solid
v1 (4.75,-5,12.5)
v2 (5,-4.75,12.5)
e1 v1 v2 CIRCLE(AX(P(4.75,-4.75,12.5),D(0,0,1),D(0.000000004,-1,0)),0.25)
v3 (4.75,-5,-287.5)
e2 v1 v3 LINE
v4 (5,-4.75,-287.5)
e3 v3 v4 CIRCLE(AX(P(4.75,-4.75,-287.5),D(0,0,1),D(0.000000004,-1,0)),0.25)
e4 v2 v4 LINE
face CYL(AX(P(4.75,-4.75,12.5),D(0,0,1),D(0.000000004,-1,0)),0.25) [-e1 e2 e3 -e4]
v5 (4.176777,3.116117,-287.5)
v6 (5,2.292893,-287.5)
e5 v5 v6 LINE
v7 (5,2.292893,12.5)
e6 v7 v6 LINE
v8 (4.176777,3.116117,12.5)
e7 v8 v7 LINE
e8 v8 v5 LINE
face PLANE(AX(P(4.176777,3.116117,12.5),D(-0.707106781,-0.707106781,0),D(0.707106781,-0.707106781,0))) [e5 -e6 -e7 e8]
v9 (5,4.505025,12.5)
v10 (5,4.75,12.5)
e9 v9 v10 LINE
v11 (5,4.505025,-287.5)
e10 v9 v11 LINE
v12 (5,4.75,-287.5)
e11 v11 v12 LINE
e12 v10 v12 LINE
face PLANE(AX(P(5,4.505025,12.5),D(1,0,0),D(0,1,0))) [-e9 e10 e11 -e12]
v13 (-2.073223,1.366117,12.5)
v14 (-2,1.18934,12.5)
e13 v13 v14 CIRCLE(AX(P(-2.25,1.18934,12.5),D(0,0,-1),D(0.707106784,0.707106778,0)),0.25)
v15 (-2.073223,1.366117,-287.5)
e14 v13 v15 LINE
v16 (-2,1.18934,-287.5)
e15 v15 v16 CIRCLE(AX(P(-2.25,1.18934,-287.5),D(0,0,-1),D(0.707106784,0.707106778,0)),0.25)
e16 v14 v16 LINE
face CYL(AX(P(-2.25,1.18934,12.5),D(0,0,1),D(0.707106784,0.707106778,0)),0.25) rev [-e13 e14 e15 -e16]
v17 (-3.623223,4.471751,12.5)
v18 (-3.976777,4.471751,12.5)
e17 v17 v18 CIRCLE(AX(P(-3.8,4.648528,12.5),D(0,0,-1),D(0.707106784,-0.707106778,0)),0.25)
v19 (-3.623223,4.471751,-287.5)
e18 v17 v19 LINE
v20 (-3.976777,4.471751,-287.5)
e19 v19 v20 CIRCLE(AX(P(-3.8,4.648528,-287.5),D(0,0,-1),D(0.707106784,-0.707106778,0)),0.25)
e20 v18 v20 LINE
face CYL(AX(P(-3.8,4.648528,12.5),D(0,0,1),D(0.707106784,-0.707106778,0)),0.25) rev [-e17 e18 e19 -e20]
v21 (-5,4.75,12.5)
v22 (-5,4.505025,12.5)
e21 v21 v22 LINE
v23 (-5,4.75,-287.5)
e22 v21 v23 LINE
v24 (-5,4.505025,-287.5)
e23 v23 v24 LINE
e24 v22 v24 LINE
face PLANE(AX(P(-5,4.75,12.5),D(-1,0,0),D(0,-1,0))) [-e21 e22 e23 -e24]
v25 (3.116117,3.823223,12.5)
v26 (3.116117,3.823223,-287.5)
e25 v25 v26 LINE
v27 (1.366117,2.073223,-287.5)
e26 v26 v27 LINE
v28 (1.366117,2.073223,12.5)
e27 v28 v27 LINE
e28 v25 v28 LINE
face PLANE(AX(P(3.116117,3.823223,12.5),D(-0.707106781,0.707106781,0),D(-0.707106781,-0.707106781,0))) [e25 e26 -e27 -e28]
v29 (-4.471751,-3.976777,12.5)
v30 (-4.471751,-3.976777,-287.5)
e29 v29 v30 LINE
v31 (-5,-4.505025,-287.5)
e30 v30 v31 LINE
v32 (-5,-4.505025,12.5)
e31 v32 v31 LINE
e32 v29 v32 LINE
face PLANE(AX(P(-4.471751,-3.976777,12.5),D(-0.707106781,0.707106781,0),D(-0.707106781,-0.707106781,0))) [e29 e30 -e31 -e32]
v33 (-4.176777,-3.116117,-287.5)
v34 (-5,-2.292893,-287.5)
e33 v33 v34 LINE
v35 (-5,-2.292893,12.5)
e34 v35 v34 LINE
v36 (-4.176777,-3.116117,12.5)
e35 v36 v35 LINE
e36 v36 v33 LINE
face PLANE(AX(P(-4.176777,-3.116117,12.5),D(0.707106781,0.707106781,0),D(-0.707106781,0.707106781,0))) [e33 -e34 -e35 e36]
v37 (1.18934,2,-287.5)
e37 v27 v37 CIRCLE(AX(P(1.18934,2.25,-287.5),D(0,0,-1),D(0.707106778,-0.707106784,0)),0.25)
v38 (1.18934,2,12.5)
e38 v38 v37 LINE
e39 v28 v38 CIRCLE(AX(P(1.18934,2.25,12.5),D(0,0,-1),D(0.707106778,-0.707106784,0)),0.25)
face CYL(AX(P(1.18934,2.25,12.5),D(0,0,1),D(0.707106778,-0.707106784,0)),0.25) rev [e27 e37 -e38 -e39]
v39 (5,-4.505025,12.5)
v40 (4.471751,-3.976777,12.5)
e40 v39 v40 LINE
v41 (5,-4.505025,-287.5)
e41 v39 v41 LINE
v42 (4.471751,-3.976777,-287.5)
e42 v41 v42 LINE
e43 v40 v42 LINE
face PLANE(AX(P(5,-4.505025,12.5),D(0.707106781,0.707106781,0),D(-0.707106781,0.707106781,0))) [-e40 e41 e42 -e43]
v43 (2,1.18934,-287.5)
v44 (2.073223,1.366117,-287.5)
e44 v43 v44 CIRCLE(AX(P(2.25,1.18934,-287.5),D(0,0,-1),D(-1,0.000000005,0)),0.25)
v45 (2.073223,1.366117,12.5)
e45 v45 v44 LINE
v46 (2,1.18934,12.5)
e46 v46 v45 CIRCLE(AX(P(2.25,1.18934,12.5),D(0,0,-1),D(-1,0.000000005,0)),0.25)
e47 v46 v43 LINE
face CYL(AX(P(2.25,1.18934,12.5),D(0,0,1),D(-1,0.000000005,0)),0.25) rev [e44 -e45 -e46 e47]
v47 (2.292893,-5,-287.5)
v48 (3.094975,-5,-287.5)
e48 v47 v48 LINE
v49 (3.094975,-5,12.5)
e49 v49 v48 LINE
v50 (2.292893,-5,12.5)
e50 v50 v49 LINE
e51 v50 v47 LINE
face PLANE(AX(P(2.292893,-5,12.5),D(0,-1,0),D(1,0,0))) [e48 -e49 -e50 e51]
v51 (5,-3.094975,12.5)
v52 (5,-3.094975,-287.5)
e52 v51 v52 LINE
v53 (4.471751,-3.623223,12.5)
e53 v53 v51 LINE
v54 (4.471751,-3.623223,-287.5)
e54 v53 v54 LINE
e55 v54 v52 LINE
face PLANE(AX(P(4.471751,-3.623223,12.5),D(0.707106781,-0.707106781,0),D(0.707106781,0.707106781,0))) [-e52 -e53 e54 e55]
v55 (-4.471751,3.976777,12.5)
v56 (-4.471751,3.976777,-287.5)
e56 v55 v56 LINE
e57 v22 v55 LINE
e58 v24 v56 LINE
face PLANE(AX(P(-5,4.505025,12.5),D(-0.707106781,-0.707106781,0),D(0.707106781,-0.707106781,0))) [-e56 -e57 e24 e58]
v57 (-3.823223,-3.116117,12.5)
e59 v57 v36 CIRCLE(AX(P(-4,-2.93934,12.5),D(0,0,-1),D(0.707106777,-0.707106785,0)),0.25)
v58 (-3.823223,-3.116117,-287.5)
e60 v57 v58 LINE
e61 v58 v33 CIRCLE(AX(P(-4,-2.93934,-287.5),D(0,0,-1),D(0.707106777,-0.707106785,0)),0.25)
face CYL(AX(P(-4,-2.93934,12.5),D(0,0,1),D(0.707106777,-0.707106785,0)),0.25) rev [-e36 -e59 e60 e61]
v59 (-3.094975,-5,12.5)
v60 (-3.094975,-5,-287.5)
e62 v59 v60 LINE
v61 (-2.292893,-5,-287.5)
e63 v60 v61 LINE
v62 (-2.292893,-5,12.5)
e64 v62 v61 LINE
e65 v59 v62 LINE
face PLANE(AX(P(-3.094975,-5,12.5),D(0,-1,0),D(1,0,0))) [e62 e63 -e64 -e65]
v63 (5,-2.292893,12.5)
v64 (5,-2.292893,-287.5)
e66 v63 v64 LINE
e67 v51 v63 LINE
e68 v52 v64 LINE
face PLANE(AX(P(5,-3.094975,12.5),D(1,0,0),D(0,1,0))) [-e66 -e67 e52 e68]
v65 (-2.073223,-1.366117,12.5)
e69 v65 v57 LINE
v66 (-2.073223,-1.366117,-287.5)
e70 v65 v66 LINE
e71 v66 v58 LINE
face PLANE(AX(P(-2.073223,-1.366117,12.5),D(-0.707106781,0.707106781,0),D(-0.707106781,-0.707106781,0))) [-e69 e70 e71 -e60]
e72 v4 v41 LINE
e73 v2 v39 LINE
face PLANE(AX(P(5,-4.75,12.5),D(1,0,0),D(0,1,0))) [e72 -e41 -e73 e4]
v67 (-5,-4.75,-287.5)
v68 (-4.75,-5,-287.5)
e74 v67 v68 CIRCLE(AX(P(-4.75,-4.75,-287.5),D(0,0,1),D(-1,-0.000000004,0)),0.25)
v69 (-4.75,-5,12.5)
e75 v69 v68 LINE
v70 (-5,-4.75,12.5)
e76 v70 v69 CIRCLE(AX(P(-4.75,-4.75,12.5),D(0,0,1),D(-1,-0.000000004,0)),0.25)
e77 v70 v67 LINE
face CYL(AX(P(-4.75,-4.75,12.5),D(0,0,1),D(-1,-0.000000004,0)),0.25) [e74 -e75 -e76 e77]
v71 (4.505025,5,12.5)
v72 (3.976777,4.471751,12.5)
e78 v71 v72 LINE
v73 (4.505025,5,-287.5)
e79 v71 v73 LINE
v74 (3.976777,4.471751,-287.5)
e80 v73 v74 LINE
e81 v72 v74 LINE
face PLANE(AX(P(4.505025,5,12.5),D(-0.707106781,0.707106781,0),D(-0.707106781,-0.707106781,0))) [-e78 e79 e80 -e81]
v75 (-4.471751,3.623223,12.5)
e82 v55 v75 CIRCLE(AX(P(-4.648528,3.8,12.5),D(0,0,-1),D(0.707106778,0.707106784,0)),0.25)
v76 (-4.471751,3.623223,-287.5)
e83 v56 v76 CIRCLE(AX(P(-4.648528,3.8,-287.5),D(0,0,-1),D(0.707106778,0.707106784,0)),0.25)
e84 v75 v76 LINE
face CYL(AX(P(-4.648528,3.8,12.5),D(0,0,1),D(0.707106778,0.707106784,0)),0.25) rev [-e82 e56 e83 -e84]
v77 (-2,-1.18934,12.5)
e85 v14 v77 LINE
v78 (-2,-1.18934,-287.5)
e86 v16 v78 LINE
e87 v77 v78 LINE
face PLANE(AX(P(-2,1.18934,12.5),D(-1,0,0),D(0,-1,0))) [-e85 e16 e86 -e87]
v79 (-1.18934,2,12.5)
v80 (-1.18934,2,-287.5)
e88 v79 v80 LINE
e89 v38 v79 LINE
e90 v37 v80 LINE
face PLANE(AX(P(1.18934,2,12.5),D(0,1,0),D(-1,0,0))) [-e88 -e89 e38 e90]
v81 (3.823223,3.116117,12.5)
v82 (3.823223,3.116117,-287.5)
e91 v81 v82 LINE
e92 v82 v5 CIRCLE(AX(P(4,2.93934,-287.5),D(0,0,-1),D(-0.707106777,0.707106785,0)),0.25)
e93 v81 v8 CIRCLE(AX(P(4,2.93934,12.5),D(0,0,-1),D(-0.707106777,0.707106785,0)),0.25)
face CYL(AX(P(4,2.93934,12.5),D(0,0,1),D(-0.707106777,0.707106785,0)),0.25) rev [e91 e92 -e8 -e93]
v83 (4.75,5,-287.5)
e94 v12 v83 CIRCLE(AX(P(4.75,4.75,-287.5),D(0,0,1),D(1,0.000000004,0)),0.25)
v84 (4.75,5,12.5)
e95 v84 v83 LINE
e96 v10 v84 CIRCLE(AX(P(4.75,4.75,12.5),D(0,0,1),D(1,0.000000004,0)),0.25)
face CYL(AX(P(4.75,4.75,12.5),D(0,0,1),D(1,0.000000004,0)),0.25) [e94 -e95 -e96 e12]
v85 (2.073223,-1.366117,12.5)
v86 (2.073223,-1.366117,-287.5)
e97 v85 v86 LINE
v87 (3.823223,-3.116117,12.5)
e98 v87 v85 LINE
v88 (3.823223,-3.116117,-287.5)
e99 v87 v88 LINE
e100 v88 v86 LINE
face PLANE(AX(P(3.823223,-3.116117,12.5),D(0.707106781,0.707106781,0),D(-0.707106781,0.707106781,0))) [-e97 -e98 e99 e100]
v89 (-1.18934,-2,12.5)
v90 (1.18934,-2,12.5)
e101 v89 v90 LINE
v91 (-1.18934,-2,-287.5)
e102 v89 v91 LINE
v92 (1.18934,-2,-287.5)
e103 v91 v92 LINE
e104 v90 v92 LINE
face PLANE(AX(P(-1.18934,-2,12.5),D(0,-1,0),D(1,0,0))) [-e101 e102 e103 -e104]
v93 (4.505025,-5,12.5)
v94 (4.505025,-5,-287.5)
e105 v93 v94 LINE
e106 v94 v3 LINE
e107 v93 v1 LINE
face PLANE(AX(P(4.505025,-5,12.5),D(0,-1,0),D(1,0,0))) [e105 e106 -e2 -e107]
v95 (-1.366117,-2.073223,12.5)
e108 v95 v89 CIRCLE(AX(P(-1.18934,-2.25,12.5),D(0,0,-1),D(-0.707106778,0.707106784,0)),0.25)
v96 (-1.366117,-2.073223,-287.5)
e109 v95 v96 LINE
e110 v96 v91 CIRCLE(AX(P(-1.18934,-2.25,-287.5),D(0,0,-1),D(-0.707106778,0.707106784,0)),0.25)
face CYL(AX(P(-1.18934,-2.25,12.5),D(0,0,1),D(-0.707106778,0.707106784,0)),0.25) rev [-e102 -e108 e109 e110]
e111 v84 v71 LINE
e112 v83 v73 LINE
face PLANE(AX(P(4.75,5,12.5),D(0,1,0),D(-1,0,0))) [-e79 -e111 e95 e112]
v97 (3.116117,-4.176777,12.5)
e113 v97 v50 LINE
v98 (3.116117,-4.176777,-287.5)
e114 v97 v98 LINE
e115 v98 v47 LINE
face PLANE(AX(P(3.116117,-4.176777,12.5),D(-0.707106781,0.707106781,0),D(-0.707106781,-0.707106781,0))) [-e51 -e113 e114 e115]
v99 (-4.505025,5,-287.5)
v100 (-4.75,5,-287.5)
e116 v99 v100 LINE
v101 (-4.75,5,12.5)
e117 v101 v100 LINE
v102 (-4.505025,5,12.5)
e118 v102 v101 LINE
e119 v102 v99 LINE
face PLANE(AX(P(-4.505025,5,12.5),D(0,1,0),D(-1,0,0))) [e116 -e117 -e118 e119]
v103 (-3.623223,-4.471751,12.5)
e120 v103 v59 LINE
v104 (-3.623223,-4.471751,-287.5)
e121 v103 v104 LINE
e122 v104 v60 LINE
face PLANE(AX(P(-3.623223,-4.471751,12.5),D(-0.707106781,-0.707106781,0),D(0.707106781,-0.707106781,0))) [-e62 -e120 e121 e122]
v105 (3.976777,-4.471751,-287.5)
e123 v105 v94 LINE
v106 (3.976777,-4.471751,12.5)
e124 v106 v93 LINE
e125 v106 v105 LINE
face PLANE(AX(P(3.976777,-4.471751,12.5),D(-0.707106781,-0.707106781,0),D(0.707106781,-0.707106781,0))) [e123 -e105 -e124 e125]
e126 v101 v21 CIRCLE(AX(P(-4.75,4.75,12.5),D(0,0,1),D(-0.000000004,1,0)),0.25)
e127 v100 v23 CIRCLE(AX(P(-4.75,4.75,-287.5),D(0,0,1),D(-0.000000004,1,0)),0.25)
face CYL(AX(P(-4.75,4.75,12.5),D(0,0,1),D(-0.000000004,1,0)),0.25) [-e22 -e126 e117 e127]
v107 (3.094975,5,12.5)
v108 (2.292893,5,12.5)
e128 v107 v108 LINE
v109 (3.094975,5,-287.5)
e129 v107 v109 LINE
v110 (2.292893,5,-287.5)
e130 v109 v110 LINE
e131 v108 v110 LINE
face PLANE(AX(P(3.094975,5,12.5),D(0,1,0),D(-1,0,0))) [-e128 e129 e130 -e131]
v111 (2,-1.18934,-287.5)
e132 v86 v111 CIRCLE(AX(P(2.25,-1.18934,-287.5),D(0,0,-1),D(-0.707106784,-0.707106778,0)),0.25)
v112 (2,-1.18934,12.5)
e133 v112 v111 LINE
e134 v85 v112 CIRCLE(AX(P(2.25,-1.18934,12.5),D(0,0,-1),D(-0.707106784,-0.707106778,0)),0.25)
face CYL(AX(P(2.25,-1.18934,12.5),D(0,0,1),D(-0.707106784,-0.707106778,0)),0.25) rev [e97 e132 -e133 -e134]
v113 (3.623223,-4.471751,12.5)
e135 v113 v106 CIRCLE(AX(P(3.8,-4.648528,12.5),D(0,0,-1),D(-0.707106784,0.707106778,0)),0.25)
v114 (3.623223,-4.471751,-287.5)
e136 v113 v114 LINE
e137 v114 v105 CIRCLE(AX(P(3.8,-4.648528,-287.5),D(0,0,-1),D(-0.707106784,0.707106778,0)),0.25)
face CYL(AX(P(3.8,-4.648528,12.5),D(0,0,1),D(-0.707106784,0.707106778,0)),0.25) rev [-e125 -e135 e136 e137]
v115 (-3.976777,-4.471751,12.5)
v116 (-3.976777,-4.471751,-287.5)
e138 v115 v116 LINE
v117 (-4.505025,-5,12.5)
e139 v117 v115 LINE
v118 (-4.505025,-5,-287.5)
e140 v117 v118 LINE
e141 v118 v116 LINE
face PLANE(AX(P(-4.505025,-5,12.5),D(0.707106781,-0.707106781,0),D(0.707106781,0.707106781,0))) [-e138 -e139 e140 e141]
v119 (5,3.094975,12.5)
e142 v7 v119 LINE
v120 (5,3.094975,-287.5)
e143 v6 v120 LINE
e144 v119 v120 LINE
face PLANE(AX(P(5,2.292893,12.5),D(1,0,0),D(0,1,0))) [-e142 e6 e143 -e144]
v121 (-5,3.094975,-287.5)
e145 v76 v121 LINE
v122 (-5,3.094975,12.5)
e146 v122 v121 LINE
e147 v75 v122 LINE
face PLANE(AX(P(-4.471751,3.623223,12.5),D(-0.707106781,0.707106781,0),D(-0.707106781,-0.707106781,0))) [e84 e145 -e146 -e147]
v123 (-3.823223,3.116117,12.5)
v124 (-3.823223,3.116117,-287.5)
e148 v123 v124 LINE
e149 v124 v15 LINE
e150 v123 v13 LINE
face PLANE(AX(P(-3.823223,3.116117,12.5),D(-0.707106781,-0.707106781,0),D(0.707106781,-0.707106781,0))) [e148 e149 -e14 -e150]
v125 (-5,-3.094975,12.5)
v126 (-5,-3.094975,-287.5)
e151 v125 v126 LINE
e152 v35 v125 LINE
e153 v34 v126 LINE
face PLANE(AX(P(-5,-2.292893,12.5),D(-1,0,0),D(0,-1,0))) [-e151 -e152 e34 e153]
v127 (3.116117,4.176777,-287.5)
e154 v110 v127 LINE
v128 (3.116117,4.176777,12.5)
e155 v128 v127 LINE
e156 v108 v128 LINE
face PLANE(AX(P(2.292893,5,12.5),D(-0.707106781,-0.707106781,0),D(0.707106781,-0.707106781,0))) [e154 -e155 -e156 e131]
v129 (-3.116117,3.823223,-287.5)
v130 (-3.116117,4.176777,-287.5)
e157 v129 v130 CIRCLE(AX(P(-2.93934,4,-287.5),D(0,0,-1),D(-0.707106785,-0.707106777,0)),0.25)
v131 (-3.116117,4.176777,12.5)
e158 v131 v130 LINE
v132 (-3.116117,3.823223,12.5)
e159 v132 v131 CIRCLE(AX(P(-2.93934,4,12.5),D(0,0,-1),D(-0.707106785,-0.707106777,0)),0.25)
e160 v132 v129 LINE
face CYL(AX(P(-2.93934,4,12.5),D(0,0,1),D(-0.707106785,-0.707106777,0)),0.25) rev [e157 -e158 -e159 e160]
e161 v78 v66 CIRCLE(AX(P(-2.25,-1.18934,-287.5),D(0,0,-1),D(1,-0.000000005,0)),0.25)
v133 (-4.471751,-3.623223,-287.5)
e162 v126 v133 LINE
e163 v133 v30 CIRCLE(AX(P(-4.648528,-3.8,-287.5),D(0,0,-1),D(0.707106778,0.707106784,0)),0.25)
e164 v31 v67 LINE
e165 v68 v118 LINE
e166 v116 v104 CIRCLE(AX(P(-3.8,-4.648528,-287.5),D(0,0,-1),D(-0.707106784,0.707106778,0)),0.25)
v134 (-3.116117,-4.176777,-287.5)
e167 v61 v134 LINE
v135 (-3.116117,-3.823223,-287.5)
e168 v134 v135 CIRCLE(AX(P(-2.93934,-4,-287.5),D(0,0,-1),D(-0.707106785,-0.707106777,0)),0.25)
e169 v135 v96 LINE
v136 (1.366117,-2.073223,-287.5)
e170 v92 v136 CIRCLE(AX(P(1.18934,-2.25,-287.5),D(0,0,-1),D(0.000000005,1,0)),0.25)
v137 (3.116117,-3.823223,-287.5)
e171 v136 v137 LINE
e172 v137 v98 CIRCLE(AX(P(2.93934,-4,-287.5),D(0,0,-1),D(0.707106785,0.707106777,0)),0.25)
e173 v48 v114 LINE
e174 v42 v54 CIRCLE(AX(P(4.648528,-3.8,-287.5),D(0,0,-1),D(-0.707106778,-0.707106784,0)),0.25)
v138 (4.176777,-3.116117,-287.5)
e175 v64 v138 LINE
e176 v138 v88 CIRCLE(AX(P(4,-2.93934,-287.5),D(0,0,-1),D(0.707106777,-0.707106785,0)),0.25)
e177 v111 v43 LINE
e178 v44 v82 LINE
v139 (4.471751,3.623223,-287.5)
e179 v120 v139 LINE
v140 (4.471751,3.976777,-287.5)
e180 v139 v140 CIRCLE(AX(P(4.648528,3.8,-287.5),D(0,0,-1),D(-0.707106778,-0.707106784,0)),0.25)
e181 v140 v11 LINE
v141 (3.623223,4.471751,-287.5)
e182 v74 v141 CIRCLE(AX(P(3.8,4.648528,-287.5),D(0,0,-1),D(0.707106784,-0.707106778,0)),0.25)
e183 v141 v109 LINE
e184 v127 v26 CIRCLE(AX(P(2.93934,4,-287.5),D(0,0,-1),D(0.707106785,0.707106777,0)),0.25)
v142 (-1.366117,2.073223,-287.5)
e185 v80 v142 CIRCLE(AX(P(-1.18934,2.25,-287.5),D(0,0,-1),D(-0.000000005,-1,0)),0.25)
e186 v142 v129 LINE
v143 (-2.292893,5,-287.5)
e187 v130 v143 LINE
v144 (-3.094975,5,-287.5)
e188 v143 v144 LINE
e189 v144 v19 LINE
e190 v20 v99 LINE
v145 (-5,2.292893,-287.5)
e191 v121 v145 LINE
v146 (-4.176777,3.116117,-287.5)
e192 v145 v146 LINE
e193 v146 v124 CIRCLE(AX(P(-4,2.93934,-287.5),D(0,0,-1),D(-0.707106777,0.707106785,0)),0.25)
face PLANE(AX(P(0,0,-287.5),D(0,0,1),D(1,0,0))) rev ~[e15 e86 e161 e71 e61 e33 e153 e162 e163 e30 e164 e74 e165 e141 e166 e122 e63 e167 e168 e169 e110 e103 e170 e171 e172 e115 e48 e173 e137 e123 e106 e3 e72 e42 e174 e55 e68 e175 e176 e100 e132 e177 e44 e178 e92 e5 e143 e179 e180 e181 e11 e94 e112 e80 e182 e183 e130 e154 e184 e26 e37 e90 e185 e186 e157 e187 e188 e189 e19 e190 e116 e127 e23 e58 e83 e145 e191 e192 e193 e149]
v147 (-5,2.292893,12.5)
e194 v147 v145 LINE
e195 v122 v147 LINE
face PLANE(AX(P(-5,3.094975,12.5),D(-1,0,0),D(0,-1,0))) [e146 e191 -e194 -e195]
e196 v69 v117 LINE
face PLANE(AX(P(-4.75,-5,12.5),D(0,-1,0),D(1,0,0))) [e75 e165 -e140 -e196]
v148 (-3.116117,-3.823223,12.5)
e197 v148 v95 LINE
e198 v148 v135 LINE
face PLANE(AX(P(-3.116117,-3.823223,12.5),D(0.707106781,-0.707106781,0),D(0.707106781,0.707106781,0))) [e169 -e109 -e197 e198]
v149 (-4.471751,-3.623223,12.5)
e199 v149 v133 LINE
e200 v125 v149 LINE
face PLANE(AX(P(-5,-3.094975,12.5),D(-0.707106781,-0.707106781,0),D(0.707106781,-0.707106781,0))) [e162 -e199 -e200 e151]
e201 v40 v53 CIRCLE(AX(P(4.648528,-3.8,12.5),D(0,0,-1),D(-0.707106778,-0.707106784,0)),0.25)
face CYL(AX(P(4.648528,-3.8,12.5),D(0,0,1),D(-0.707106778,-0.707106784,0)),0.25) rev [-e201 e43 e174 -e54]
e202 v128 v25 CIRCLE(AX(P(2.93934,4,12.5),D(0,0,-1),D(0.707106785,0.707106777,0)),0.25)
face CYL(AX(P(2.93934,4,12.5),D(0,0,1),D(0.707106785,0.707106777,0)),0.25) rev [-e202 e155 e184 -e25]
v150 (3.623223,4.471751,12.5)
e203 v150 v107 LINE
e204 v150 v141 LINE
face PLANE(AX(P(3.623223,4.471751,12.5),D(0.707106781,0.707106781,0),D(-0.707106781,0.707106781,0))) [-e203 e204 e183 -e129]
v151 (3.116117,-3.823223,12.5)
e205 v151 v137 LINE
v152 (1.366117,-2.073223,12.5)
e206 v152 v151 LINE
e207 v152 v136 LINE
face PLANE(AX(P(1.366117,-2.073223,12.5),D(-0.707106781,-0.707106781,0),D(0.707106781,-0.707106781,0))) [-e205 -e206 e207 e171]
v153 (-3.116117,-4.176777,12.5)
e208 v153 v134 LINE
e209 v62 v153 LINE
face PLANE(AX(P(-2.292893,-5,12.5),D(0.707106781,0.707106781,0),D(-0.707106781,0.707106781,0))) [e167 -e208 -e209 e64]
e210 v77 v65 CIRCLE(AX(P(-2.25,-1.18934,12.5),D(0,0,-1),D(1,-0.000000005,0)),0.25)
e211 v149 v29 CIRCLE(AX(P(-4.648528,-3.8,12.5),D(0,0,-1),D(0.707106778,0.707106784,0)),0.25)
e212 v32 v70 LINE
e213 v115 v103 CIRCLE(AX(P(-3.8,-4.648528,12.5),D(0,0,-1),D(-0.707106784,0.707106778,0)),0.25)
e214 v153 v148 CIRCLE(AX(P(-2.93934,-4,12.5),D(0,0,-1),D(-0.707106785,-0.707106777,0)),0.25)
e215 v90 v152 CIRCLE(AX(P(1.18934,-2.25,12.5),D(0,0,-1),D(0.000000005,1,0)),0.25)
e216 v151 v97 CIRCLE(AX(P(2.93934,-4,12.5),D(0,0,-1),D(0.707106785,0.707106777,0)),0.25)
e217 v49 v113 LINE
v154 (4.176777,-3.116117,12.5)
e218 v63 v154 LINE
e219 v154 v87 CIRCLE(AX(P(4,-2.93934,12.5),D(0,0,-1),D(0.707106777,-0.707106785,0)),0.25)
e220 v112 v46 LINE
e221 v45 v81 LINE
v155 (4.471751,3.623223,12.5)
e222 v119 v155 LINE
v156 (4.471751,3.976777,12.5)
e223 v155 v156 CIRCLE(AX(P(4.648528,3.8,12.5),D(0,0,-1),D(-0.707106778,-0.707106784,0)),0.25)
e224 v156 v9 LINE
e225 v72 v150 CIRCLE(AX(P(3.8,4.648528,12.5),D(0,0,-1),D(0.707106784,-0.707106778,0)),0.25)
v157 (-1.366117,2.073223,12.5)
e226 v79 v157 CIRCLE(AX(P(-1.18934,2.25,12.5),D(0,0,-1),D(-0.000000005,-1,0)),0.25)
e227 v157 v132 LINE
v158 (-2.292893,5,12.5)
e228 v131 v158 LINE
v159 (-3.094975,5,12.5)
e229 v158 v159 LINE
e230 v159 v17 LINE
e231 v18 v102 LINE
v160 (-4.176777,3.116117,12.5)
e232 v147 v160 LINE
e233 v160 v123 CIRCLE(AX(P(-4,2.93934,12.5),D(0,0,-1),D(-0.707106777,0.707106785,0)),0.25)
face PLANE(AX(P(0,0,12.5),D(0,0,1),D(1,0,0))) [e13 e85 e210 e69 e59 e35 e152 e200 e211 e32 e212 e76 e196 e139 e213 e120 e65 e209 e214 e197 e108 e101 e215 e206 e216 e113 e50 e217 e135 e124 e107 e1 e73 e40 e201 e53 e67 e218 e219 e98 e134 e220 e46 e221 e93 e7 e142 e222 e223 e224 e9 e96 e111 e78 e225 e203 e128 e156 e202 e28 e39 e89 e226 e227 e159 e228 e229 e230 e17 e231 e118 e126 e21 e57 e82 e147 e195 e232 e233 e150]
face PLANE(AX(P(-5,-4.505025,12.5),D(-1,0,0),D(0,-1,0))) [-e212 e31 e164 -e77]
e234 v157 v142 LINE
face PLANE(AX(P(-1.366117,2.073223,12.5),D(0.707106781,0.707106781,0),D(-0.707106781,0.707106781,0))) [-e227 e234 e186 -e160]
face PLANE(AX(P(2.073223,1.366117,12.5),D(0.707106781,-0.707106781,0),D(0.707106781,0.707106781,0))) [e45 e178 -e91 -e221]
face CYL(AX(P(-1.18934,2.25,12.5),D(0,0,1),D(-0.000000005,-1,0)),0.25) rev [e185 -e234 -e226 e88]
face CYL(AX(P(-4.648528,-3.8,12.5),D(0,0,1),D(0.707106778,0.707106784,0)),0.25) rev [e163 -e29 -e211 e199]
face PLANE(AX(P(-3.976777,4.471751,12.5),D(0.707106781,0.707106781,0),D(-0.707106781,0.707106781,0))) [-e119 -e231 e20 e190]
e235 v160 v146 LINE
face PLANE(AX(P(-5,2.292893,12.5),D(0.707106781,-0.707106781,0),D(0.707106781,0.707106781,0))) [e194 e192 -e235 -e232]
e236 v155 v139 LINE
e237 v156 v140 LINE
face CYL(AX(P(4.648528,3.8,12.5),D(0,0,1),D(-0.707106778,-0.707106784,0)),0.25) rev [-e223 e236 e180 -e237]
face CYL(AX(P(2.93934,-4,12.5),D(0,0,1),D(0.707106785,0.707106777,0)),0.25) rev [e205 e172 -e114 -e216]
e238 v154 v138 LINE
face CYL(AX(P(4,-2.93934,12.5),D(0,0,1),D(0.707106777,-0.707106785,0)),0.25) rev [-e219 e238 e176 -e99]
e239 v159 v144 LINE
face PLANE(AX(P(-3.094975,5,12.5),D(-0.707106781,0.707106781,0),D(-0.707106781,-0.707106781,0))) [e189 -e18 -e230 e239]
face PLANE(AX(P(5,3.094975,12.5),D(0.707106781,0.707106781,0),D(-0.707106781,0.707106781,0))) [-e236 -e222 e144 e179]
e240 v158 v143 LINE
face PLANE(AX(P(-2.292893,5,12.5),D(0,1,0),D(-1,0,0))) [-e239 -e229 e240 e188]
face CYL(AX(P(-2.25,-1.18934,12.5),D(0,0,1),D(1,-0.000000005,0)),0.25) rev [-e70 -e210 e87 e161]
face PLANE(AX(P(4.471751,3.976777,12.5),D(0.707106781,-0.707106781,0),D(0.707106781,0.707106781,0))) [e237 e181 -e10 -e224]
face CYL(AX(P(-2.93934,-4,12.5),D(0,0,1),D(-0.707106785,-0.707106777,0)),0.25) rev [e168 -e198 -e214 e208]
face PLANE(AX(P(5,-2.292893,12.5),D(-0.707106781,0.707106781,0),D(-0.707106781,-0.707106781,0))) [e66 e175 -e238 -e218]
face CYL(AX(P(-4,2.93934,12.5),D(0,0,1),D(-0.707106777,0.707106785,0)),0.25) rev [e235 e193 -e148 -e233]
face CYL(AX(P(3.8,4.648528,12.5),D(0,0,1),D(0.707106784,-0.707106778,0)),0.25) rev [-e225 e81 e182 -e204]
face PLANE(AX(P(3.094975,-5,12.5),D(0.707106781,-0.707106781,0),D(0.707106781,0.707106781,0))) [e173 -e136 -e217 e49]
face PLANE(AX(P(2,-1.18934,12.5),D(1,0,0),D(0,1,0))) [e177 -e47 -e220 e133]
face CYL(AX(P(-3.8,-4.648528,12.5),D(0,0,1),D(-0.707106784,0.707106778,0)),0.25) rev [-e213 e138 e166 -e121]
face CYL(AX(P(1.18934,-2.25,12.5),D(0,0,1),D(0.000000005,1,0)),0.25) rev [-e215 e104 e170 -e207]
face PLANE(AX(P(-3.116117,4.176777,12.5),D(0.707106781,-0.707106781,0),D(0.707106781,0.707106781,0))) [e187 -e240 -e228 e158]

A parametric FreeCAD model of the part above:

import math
import FreeCAD as App
import Part
import Sketcher

V = App.Vector
Q = App.Units.Quantity

doc = App.newDocument("Part")
body = doc.addObject("PartDesign::Body", "Body")

sketch1 = body.newObject("Sketcher::SketchObject", "Sketch")
sketch1.AttachmentSupport = (doc.getObject("XY_Plane"), [""])
sketch1.MapMode = "FlatFace"
sketch1.AttachmentOffset = App.Placement(V(0, 0, 12.5), App.Rotation())
sketch1.addGeometry(Part.LineSegment(V(1.19, 2, 0), V(-1.19, 2, 0)), False)
sketch1.addGeometry(Part.ArcOfCircle(Part.Circle(V(-1.19, 2.25, 0), V(0, 0, 1), 0.25), math.radians(-135), math.radians(-90)), False)
sketch1.addGeometry(Part.LineSegment(V(-1.37, 2.07, 0), V(-3.12, 3.82, 0)), False)
sketch1.addGeometry(Part.ArcOfCircle(Part.Circle(V(-2.94, 4, 0), V(0, 0, 1), 0.25), math.radians(135), math.radians(225)), False)
sketch1.addGeometry(Part.LineSegment(V(-3.12, 4.18, 0), V(-2.29, 5, 0)), False)
sketch1.addGeometry(Part.LineSegment(V(-2.29, 5, 0), V(-3.09, 5, 0)), False)
sketch1.addGeometry(Part.LineSegment(V(-3.09, 5, 0), V(-3.62, 4.47, 0)), False)
sketch1.addGeometry(Part.ArcOfCircle(Part.Circle(V(-3.8, 4.65, 0), V(0, 0, 1), 0.25), math.radians(-135), math.radians(-45)), False)
sketch1.addGeometry(Part.LineSegment(V(-3.98, 4.47, 0), V(-4.51, 5, 0)), False)
sketch1.addGeometry(Part.LineSegment(V(-4.51, 5, 0), V(-4.75, 5, 0)), False)
sketch1.addGeometry(Part.ArcOfCircle(Part.Circle(V(-4.75, 4.75, 0), V(0, 0, 1), 0.25), math.radians(90), math.radians(180)), False)
sketch1.addGeometry(Part.LineSegment(V(-5, 4.75, 0), V(-5, 4.51, 0)), False)
sketch1.addGeometry(Part.LineSegment(V(-5, 4.51, 0), V(-4.47, 3.98, 0)), False)
sketch1.addGeometry(Part.ArcOfCircle(Part.Circle(V(-4.65, 3.8, 0), V(0, 0, 1), 0.25), math.radians(-45), math.radians(45)), False)
sketch1.addGeometry(Part.LineSegment(V(-4.47, 3.62, 0), V(-5, 3.09, 0)), False)
sketch1.addGeometry(Part.LineSegment(V(-5, 3.09, 0), V(-5, 2.29, 0)), False)
sketch1.addGeometry(Part.LineSegment(V(-5, 2.29, 0), V(-4.18, 3.12, 0)), False)
sketch1.addGeometry(Part.ArcOfCircle(Part.Circle(V(-4, 2.94, 0), V(0, 0, 1), 0.25), math.radians(45), math.radians(135)), False)
sketch1.addGeometry(Part.LineSegment(V(-3.82, 3.12, 0), V(-2.07, 1.37, 0)), False)
sketch1.addGeometry(Part.ArcOfCircle(Part.Circle(V(-2.25, 1.19, 0), V(0, 0, 1), 0.25), math.radians(0), math.radians(45)), False)
sketch1.addGeometry(Part.LineSegment(V(-2, 1.19, 0), V(-2, -1.19, 0)), False)
sketch1.addGeometry(Part.ArcOfCircle(Part.Circle(V(-2.25, -1.19, 0), V(0, 0, 1), 0.25), math.radians(-45), math.radians(0)), False)
sketch1.addGeometry(Part.LineSegment(V(-2.07, -1.37, 0), V(-3.82, -3.12, 0)), False)
sketch1.addGeometry(Part.ArcOfCircle(Part.Circle(V(-4, -2.94, 0), V(0, 0, 1), 0.25), math.radians(-135), math.radians(-45)), False)
sketch1.addGeometry(Part.LineSegment(V(-4.18, -3.12, 0), V(-5, -2.29, 0)), False)
sketch1.addGeometry(Part.LineSegment(V(-5, -2.29, 0), V(-5, -3.09, 0)), False)
sketch1.addGeometry(Part.LineSegment(V(-5, -3.09, 0), V(-4.47, -3.62, 0)), False)
sketch1.addGeometry(Part.ArcOfCircle(Part.Circle(V(-4.65, -3.8, 0), V(0, 0, 1), 0.25), math.radians(-45), math.radians(45)), False)
sketch1.addGeometry(Part.LineSegment(V(-4.47, -3.98, 0), V(-5, -4.51, 0)), False)
sketch1.addGeometry(Part.LineSegment(V(-5, -4.51, 0), V(-5, -4.75, 0)), False)
sketch1.addGeometry(Part.ArcOfCircle(Part.Circle(V(-4.75, -4.75, 0), V(0, 0, 1), 0.25), math.radians(-180), math.radians(-90)), False)
sketch1.addGeometry(Part.LineSegment(V(-4.75, -5, 0), V(-4.51, -5, 0)), False)
sketch1.addGeometry(Part.LineSegment(V(-4.51, -5, 0), V(-3.98, -4.47, 0)), False)
sketch1.addGeometry(Part.ArcOfCircle(Part.Circle(V(-3.8, -4.65, 0), V(0, 0, 1), 0.25), math.radians(45), math.radians(135)), False)
sketch1.addGeometry(Part.LineSegment(V(-3.62, -4.47, 0), V(-3.09, -5, 0)), False)
sketch1.addGeometry(Part.LineSegment(V(-3.09, -5, 0), V(-2.29, -5, 0)), False)
sketch1.addGeometry(Part.LineSegment(V(-2.29, -5, 0), V(-3.12, -4.18, 0)), False)
sketch1.addGeometry(Part.ArcOfCircle(Part.Circle(V(-2.94, -4, 0), V(0, 0, 1), 0.25), math.radians(135), math.radians(225)), False)
sketch1.addGeometry(Part.LineSegment(V(-3.12, -3.82, 0), V(-1.37, -2.07, 0)), False)
sketch1.addGeometry(Part.ArcOfCircle(Part.Circle(V(-1.19, -2.25, 0), V(0, 0, 1), 0.25), math.radians(90), math.radians(135)), False)
sketch1.addGeometry(Part.LineSegment(V(-1.19, -2, 0), V(1.19, -2, 0)), False)
sketch1.addGeometry(Part.ArcOfCircle(Part.Circle(V(1.19, -2.25, 0), V(0, 0, 1), 0.25), math.radians(45), math.radians(90)), False)
sketch1.addGeometry(Part.LineSegment(V(1.37, -2.07, 0), V(3.12, -3.82, 0)), False)
sketch1.addGeometry(Part.ArcOfCircle(Part.Circle(V(2.94, -4, 0), V(0, 0, 1), 0.25), math.radians(-45), math.radians(45)), False)
sketch1.addGeometry(Part.LineSegment(V(3.12, -4.18, 0), V(2.29, -5, 0)), False)
sketch1.addGeometry(Part.LineSegment(V(2.29, -5, 0), V(3.09, -5, 0)), False)
sketch1.addGeometry(Part.LineSegment(V(3.09, -5, 0), V(3.62, -4.47, 0)), False)
sketch1.addGeometry(Part.ArcOfCircle(Part.Circle(V(3.8, -4.65, 0), V(0, 0, 1), 0.25), math.radians(45), math.radians(135)), False)
sketch1.addGeometry(Part.LineSegment(V(3.98, -4.47, 0), V(4.51, -5, 0)), False)
sketch1.addGeometry(Part.LineSegment(V(4.51, -5, 0), V(4.75, -5, 0)), False)
sketch1.addGeometry(Part.ArcOfCircle(Part.Circle(V(4.75, -4.75, 0), V(0, 0, 1), 0.25), math.radians(-90), math.radians(0)), False)
sketch1.addGeometry(Part.LineSegment(V(5, -4.75, 0), V(5, -4.51, 0)), False)
sketch1.addGeometry(Part.LineSegment(V(5, -4.51, 0), V(4.47, -3.98, 0)), False)
sketch1.addGeometry(Part.ArcOfCircle(Part.Circle(V(4.65, -3.8, 0), V(0, 0, 1), 0.25), math.radians(135), math.radians(225)), False)
sketch1.addGeometry(Part.LineSegment(V(4.47, -3.62, 0), V(5, -3.09, 0)), False)
sketch1.addGeometry(Part.LineSegment(V(5, -3.09, 0), V(5, -2.29, 0)), False)
sketch1.addGeometry(Part.LineSegment(V(5, -2.29, 0), V(4.18, -3.12, 0)), False)
sketch1.addGeometry(Part.ArcOfCircle(Part.Circle(V(4, -2.94, 0), V(0, 0, 1), 0.25), math.radians(-135), math.radians(-45)), False)
sketch1.addGeometry(Part.LineSegment(V(3.82, -3.12, 0), V(2.07, -1.37, 0)), False)
sketch1.addGeometry(Part.ArcOfCircle(Part.Circle(V(2.25, -1.19, 0), V(0, 0, 1), 0.25), math.radians(-180), math.radians(-135)), False)
sketch1.addGeometry(Part.LineSegment(V(2, -1.19, 0), V(2, 1.19, 0)), False)
sketch1.addGeometry(Part.ArcOfCircle(Part.Circle(V(2.25, 1.19, 0), V(0, 0, 1), 0.25), math.radians(135), math.radians(180)), False)
sketch1.addGeometry(Part.LineSegment(V(2.07, 1.37, 0), V(3.82, 3.12, 0)), False)
sketch1.addGeometry(Part.ArcOfCircle(Part.Circle(V(4, 2.94, 0), V(0, 0, 1), 0.25), math.radians(45), math.radians(135)), False)
sketch1.addGeometry(Part.LineSegment(V(4.18, 3.12, 0), V(5, 2.29, 0)), False)
sketch1.addGeometry(Part.LineSegment(V(5, 2.29, 0), V(5, 3.09, 0)), False)
sketch1.addGeometry(Part.LineSegment(V(5, 3.09, 0), V(4.47, 3.62, 0)), False)
sketch1.addGeometry(Part.ArcOfCircle(Part.Circle(V(4.65, 3.8, 0), V(0, 0, 1), 0.25), math.radians(135), math.radians(225)), False)
sketch1.addGeometry(Part.LineSegment(V(4.47, 3.98, 0), V(5, 4.51, 0)), False)
sketch1.addGeometry(Part.LineSegment(V(5, 4.51, 0), V(5, 4.75, 0)), False)
sketch1.addGeometry(Part.ArcOfCircle(Part.Circle(V(4.75, 4.75, 0), V(0, 0, 1), 0.25), math.radians(0), math.radians(90)), False)
sketch1.addGeometry(Part.LineSegment(V(4.75, 5, 0), V(4.51, 5, 0)), False)
sketch1.addGeometry(Part.LineSegment(V(4.51, 5, 0), V(3.98, 4.47, 0)), False)
sketch1.addGeometry(Part.ArcOfCircle(Part.Circle(V(3.8, 4.65, 0), V(0, 0, 1), 0.25), math.radians(-135), math.radians(-45)), False)
sketch1.addGeometry(Part.LineSegment(V(3.62, 4.47, 0), V(3.09, 5, 0)), False)
sketch1.addGeometry(Part.LineSegment(V(3.09, 5, 0), V(2.29, 5, 0)), False)
sketch1.addGeometry(Part.LineSegment(V(2.29, 5, 0), V(3.12, 4.18, 0)), False)
sketch1.addGeometry(Part.ArcOfCircle(Part.Circle(V(2.94, 4, 0), V(0, 0, 1), 0.25), math.radians(-45), math.radians(45)), False)
sketch1.addGeometry(Part.LineSegment(V(3.12, 3.82, 0), V(1.37, 2.07, 0)), False)
sketch1.addGeometry(Part.ArcOfCircle(Part.Circle(V(1.19, 2.25, 0), V(0, 0, 1), 0.25), math.radians(-90), math.radians(-45)), False)
sketch1.addConstraint(Sketcher.Constraint("Tangent", 0, 2, 1, 2))
sketch1.addConstraint(Sketcher.Constraint("Tangent", 1, 1, 2, 1))
sketch1.addConstraint(Sketcher.Constraint("Tangent", 2, 2, 3, 2))
sketch1.addConstraint(Sketcher.Constraint("Tangent", 3, 1, 4, 1))
sketch1.addConstraint(Sketcher.Constraint("Coincident", 4, 2, 5, 1))
sketch1.addConstraint(Sketcher.Constraint("Coincident", 5, 2, 6, 1))
sketch1.addConstraint(Sketcher.Constraint("Tangent", 6, 2, 7, 2))
sketch1.addConstraint(Sketcher.Constraint("Tangent", 7, 1, 8, 1))
sketch1.addConstraint(Sketcher.Constraint("Coincident", 8, 2, 9, 1))
sketch1.addConstraint(Sketcher.Constraint("Tangent", 9, 2, 10, 1))
sketch1.addConstraint(Sketcher.Constraint("Tangent", 10, 2, 11, 1))
sketch1.addConstraint(Sketcher.Constraint("Coincident", 11, 2, 12, 1))
sketch1.addConstraint(Sketcher.Constraint("Tangent", 12, 2, 13, 2))
sketch1.addConstraint(Sketcher.Constraint("Tangent", 13, 1, 14, 1))
sketch1.addConstraint(Sketcher.Constraint("Coincident", 14, 2, 15, 1))
sketch1.addConstraint(Sketcher.Constraint("Coincident", 15, 2, 16, 1))
sketch1.addConstraint(Sketcher.Constraint("Tangent", 16, 2, 17, 2))
sketch1.addConstraint(Sketcher.Constraint("Tangent", 17, 1, 18, 1))
sketch1.addConstraint(Sketcher.Constraint("Tangent", 18, 2, 19, 2))
sketch1.addConstraint(Sketcher.Constraint("Tangent", 19, 1, 20, 1))
sketch1.addConstraint(Sketcher.Constraint("Tangent", 20, 2, 21, 2))
sketch1.addConstraint(Sketcher.Constraint("Tangent", 21, 1, 22, 1))
sketch1.addConstraint(Sketcher.Constraint("Tangent", 22, 2, 23, 2))
sketch1.addConstraint(Sketcher.Constraint("Tangent", 23, 1, 24, 1))
sketch1.addConstraint(Sketcher.Constraint("Coincident", 24, 2, 25, 1))
sketch1.addConstraint(Sketcher.Constraint("Coincident", 25, 2, 26, 1))
sketch1.addConstraint(Sketcher.Constraint("Tangent", 26, 2, 27, 2))
sketch1.addConstraint(Sketcher.Constraint("Tangent", 27, 1, 28, 1))
sketch1.addConstraint(Sketcher.Constraint("Coincident", 28, 2, 29, 1))
sketch1.addConstraint(Sketcher.Constraint("Tangent", 29, 2, 30, 1))
sketch1.addConstraint(Sketcher.Constraint("Tangent", 30, 2, 31, 1))
sketch1.addConstraint(Sketcher.Constraint("Coincident", 31, 2, 32, 1))
sketch1.addConstraint(Sketcher.Constraint("Tangent", 32, 2, 33, 2))
sketch1.addConstraint(Sketcher.Constraint("Tangent", 33, 1, 34, 1))
sketch1.addConstraint(Sketcher.Constraint("Coincident", 34, 2, 35, 1))
sketch1.addConstraint(Sketcher.Constraint("Coincident", 35, 2, 36, 1))
sketch1.addConstraint(Sketcher.Constraint("Tangent", 36, 2, 37, 2))
sketch1.addConstraint(Sketcher.Constraint("Tangent", 37, 1, 38, 1))
sketch1.addConstraint(Sketcher.Constraint("Tangent", 38, 2, 39, 2))
sketch1.addConstraint(Sketcher.Constraint("Tangent", 39, 1, 40, 1))
sketch1.addConstraint(Sketcher.Constraint("Tangent", 40, 2, 41, 2))
sketch1.addConstraint(Sketcher.Constraint("Tangent", 41, 1, 42, 1))
sketch1.addConstraint(Sketcher.Constraint("Tangent", 42, 2, 43, 2))
sketch1.addConstraint(Sketcher.Constraint("Tangent", 43, 1, 44, 1))
sketch1.addConstraint(Sketcher.Constraint("Coincident", 44, 2, 45, 1))
sketch1.addConstraint(Sketcher.Constraint("Coincident", 45, 2, 46, 1))
sketch1.addConstraint(Sketcher.Constraint("Tangent", 46, 2, 47, 2))
sketch1.addConstraint(Sketcher.Constraint("Tangent", 47, 1, 48, 1))
sketch1.addConstraint(Sketcher.Constraint("Coincident", 48, 2, 49, 1))
sketch1.addConstraint(Sketcher.Constraint("Tangent", 49, 2, 50, 1))
sketch1.addConstraint(Sketcher.Constraint("Tangent", 50, 2, 51, 1))
sketch1.addConstraint(Sketcher.Constraint("Coincident", 51, 2, 52, 1))
sketch1.addConstraint(Sketcher.Constraint("Tangent", 52, 2, 53, 2))
sketch1.addConstraint(Sketcher.Constraint("Tangent", 53, 1, 54, 1))
sketch1.addConstraint(Sketcher.Constraint("Coincident", 54, 2, 55, 1))
sketch1.addConstraint(Sketcher.Constraint("Coincident", 55, 2, 56, 1))
sketch1.addConstraint(Sketcher.Constraint("Tangent", 56, 2, 57, 2))
sketch1.addConstraint(Sketcher.Constraint("Tangent", 57, 1, 58, 1))
sketch1.addConstraint(Sketcher.Constraint("Tangent", 58, 2, 59, 2))
sketch1.addConstraint(Sketcher.Constraint("Tangent", 59, 1, 60, 1))
sketch1.addConstraint(Sketcher.Constraint("Tangent", 60, 2, 61, 2))
sketch1.addConstraint(Sketcher.Constraint("Tangent", 61, 1, 62, 1))
sketch1.addConstraint(Sketcher.Constraint("Tangent", 62, 2, 63, 2))
sketch1.addConstraint(Sketcher.Constraint("Tangent", 63, 1, 64, 1))
sketch1.addConstraint(Sketcher.Constraint("Coincident", 64, 2, 65, 1))
sketch1.addConstraint(Sketcher.Constraint("Coincident", 65, 2, 66, 1))
sketch1.addConstraint(Sketcher.Constraint("Tangent", 66, 2, 67, 2))
sketch1.addConstraint(Sketcher.Constraint("Tangent", 67, 1, 68, 1))
sketch1.addConstraint(Sketcher.Constraint("Coincident", 68, 2, 69, 1))
sketch1.addConstraint(Sketcher.Constraint("Tangent", 69, 2, 70, 1))
sketch1.addConstraint(Sketcher.Constraint("Tangent", 70, 2, 71, 1))
sketch1.addConstraint(Sketcher.Constraint("Coincident", 71, 2, 72, 1))
sketch1.addConstraint(Sketcher.Constraint("Tangent", 72, 2, 73, 2))
sketch1.addConstraint(Sketcher.Constraint("Tangent", 73, 1, 74, 1))
sketch1.addConstraint(Sketcher.Constraint("Coincident", 74, 2, 75, 1))
sketch1.addConstraint(Sketcher.Constraint("Coincident", 75, 2, 76, 1))
sketch1.addConstraint(Sketcher.Constraint("Tangent", 76, 2, 77, 2))
sketch1.addConstraint(Sketcher.Constraint("Tangent", 77, 1, 78, 1))
sketch1.addConstraint(Sketcher.Constraint("Tangent", 78, 2, 79, 2))
sketch1.addConstraint(Sketcher.Constraint("Tangent", 79, 1, 0, 1))
sketch1.addConstraint(Sketcher.Constraint("Horizontal", 0))
sketch1.addConstraint(Sketcher.Constraint("Horizontal", 5))
sketch1.addConstraint(Sketcher.Constraint("Horizontal", 9))
sketch1.addConstraint(Sketcher.Constraint("Vertical", 11))
sketch1.addConstraint(Sketcher.Constraint("Vertical", 15))
sketch1.addConstraint(Sketcher.Constraint("Vertical", 20))
sketch1.addConstraint(Sketcher.Constraint("Vertical", 25))
sketch1.addConstraint(Sketcher.Constraint("Vertical", 29))
sketch1.addConstraint(Sketcher.Constraint("Horizontal", 31))
sketch1.addConstraint(Sketcher.Constraint("Horizontal", 35))
sketch1.addConstraint(Sketcher.Constraint("Horizontal", 40))
sketch1.addConstraint(Sketcher.Constraint("Horizontal", 45))
sketch1.addConstraint(Sketcher.Constraint("Horizontal", 49))
sketch1.addConstraint(Sketcher.Constraint("Vertical", 51))
sketch1.addConstraint(Sketcher.Constraint("Vertical", 55))
sketch1.addConstraint(Sketcher.Constraint("Vertical", 60))
sketch1.addConstraint(Sketcher.Constraint("Vertical", 65))
sketch1.addConstraint(Sketcher.Constraint("Vertical", 69))
sketch1.addConstraint(Sketcher.Constraint("Horizontal", 71))
sketch1.addConstraint(Sketcher.Constraint("Horizontal", 75))
sketch1.addConstraint(Sketcher.Constraint("Equal", 1, 3))
sketch1.addConstraint(Sketcher.Constraint("Equal", 3, 7))
sketch1.addConstraint(Sketcher.Constraint("Equal", 7, 10))
sketch1.addConstraint(Sketcher.Constraint("Equal", 10, 13))
sketch1.addConstraint(Sketcher.Constraint("Equal", 13, 17))
sketch1.addConstraint(Sketcher.Constraint("Equal", 17, 19))
sketch1.addConstraint(Sketcher.Constraint("Equal", 19, 21))
sketch1.addConstraint(Sketcher.Constraint("Equal", 21, 23))
sketch1.addConstraint(Sketcher.Constraint("Equal", 23, 27))
sketch1.addConstraint(Sketcher.Constraint("Equal", 27, 30))
sketch1.addConstraint(Sketcher.Constraint("Equal", 30, 33))
sketch1.addConstraint(Sketcher.Constraint("Equal", 33, 37))
sketch1.addConstraint(Sketcher.Constraint("Equal", 37, 39))
sketch1.addConstraint(Sketcher.Constraint("Equal", 39, 41))
sketch1.addConstraint(Sketcher.Constraint("Equal", 41, 43))
sketch1.addConstraint(Sketcher.Constraint("Equal", 43, 47))
sketch1.addConstraint(Sketcher.Constraint("Equal", 47, 50))
sketch1.addConstraint(Sketcher.Constraint("Equal", 50, 53))
sketch1.addConstraint(Sketcher.Constraint("Equal", 53, 57))
sketch1.addConstraint(Sketcher.Constraint("Equal", 57, 59))
sketch1.addConstraint(Sketcher.Constraint("Equal", 59, 61))
sketch1.addConstraint(Sketcher.Constraint("Equal", 61, 63))
sketch1.addConstraint(Sketcher.Constraint("Equal", 63, 67))
sketch1.addConstraint(Sketcher.Constraint("Equal", 67, 70))
sketch1.addConstraint(Sketcher.Constraint("Equal", 70, 73))
sketch1.addConstraint(Sketcher.Constraint("Equal", 73, 77))
sketch1.addConstraint(Sketcher.Constraint("Equal", 77, 79))
sketch1.addConstraint(Sketcher.Constraint("Symmetric", 1, 3, 41, 3, -1, 1))
sketch1.addConstraint(Sketcher.Constraint("Symmetric", 3, 3, 43, 3, -1, 1))
sketch1.addConstraint(Sketcher.Constraint("Symmetric", 7, 3, 47, 3, -1, 1))
sketch1.addConstraint(Sketcher.Constraint("Symmetric", 10, 3, 50, 3, -1, 1))
sketch1.addConstraint(Sketcher.Constraint("Symmetric", 13, 3, 53, 3, -1, 1))
sketch1.addConstraint(Sketcher.Constraint("Symmetric", 17, 3, 57, 3, -1, 1))
sketch1.addConstraint(Sketcher.Constraint("Symmetric", 19, 3, 59, 3, -1, 1))
sketch1.addConstraint(Sketcher.Constraint("Symmetric", 23, 3, 63, 3, -1, 1))
sketch1.addConstraint(Sketcher.Constraint("Symmetric", 27, 3, 67, 3, -1, 1))
sketch1.addConstraint(Sketcher.Constraint("Symmetric", 30, 3, 70, 3, -1, 1))
sketch1.addConstraint(Sketcher.Constraint("Symmetric", 33, 3, 73, 3, -1, 1))
sketch1.addConstraint(Sketcher.Constraint("Symmetric", 37, 3, 77, 3, -1, 1))
sketch1.addConstraint(Sketcher.Constraint("Symmetric", 4, 2, 44, 2, -1, 1))
sketch1.addConstraint(Sketcher.Constraint("Symmetric", 14, 2, 54, 2, -1, 1))
sketch1.addConstraint(Sketcher.Constraint("Symmetric", 24, 2, 64, 2, -1, 1))
sketch1.addConstraint(Sketcher.Constraint("Symmetric", 34, 2, 74, 2, -1, 1))
sketch1.addConstraint(Sketcher.Constraint("Symmetric", 37, 3, 43, 3, -2))
sketch1.addConstraint(Sketcher.Constraint("Symmetric", 33, 3, 47, 3, -2))
sketch1.addConstraint(Sketcher.Constraint("Symmetric", 30, 3, 50, 3, -2))
sketch1.addConstraint(Sketcher.Constraint("Symmetric", 27, 3, 53, 3, -2))
sketch1.addConstraint(Sketcher.Constraint("Symmetric", 23, 3, 57, 3, -2))
sketch1.addConstraint(Sketcher.Constraint("Symmetric", 35, 2, 44, 2, -2))
sketch1.addConstraint(Sketcher.Constraint("Symmetric", 25, 2, 54, 2, -2))
sketch1.addConstraint(Sketcher.Constraint("Perpendicular", 2, 4))
sketch1.addConstraint(Sketcher.Constraint("Parallel", 4, 6))
sketch1.addConstraint(Sketcher.Constraint("Perpendicular", 6, 8))
sketch1.addConstraint(Sketcher.Constraint("Parallel", 8, 12))
sketch1.addConstraint(Sketcher.Constraint("Perpendicular", 12, 14))
sketch1.addConstraint(Sketcher.Constraint("Parallel", 14, 16))
sketch1.addConstraint(Sketcher.Constraint("Perpendicular", 16, 18))
sketch1.addConstraint(Sketcher.Constraint("Perpendicular", 18, 22))
sketch1.addConstraint(Sketcher.Constraint("Perpendicular", 22, 24))
sketch1.addConstraint(Sketcher.Constraint("Parallel", 24, 26))
sketch1.addConstraint(Sketcher.Constraint("Perpendicular", 26, 28))
sketch1.addConstraint(Sketcher.Constraint("Parallel", 28, 32))
sketch1.addConstraint(Sketcher.Constraint("Perpendicular", 32, 34))
sketch1.addConstraint(Sketcher.Constraint("Perpendicular", 36, 38))
sketch1.addConstraint(Sketcher.Constraint("Parallel", 44, 46))
sketch1.addConstraint(Sketcher.Constraint("Perpendicular", 46, 48))
sketch1.addConstraint(Sketcher.Constraint("Parallel", 48, 52))
sketch1.addConstraint(Sketcher.Constraint("Parallel", 54, 56))
sketch1.addConstraint(Sketcher.Constraint("Perpendicular", 58, 62))
sketch1.addConstraint(Sketcher.Constraint("Parallel", 64, 66))
sketch1.addConstraint(Sketcher.Constraint("Perpendicular", 66, 68))
sketch1.addConstraint(Sketcher.Constraint("Parallel", 68, 72))
sketch1.addConstraint(Sketcher.Constraint("Parallel", 74, 76))
sketch1.addConstraint(Sketcher.Constraint("Perpendicular", 76, 78))
sketch1.addConstraint(Sketcher.Constraint("Horizontal", 5, 2, 8, 2))
sketch1.addConstraint(Sketcher.Constraint("Vertical", 11, 2, 14, 2))
sketch1.addConstraint(Sketcher.Constraint("Equal", 71, 11))
sketch1.addConstraint(Sketcher.Constraint("Equal", 75, 15))
sketch1.addConstraint(Sketcher.Constraint("Equal", 40, 20))
sketch1.addConstraint(Sketcher.Constraint("Equal", 8, 12))
sketch1.addConstraint(Sketcher.Constraint("Equal", 4, 16))
sketch1.addConstraint(Sketcher.Constraint("Equal", 2, 18))
sketch1.addConstraint(Sketcher.Constraint("Radius", 1, Q("0.25 mm")))
sketch1.addConstraint(Sketcher.Constraint("DistanceY", -1, 1, 3, 3, Q("4 mm")))
sketch1.addConstraint(Sketcher.Constraint("DistanceY", -1, 1, 0, 2, Q("2 mm")))
sketch1.addConstraint(Sketcher.Constraint("DistanceY", -1, 1, 4, 2, Q("5 mm")))
sketch1.addConstraint(Sketcher.Constraint("DistanceX", 7, 3, -1, 1, Q("3.8 mm")))
sketch1.addConstraint(Sketcher.Constraint("DistanceX", 0, 2, 0, 1, Q("2.37868 mm")))
sketch1.addConstraint(Sketcher.Constraint("DistanceX", 5, 2, 5, 1, Q("0.802082 mm")))
pad1 = body.newObject("PartDesign::Pad", "Pad")
pad1.Profile = sketch1
pad1.Length = 300
pad1.Reversed = True

doc.recompute()
